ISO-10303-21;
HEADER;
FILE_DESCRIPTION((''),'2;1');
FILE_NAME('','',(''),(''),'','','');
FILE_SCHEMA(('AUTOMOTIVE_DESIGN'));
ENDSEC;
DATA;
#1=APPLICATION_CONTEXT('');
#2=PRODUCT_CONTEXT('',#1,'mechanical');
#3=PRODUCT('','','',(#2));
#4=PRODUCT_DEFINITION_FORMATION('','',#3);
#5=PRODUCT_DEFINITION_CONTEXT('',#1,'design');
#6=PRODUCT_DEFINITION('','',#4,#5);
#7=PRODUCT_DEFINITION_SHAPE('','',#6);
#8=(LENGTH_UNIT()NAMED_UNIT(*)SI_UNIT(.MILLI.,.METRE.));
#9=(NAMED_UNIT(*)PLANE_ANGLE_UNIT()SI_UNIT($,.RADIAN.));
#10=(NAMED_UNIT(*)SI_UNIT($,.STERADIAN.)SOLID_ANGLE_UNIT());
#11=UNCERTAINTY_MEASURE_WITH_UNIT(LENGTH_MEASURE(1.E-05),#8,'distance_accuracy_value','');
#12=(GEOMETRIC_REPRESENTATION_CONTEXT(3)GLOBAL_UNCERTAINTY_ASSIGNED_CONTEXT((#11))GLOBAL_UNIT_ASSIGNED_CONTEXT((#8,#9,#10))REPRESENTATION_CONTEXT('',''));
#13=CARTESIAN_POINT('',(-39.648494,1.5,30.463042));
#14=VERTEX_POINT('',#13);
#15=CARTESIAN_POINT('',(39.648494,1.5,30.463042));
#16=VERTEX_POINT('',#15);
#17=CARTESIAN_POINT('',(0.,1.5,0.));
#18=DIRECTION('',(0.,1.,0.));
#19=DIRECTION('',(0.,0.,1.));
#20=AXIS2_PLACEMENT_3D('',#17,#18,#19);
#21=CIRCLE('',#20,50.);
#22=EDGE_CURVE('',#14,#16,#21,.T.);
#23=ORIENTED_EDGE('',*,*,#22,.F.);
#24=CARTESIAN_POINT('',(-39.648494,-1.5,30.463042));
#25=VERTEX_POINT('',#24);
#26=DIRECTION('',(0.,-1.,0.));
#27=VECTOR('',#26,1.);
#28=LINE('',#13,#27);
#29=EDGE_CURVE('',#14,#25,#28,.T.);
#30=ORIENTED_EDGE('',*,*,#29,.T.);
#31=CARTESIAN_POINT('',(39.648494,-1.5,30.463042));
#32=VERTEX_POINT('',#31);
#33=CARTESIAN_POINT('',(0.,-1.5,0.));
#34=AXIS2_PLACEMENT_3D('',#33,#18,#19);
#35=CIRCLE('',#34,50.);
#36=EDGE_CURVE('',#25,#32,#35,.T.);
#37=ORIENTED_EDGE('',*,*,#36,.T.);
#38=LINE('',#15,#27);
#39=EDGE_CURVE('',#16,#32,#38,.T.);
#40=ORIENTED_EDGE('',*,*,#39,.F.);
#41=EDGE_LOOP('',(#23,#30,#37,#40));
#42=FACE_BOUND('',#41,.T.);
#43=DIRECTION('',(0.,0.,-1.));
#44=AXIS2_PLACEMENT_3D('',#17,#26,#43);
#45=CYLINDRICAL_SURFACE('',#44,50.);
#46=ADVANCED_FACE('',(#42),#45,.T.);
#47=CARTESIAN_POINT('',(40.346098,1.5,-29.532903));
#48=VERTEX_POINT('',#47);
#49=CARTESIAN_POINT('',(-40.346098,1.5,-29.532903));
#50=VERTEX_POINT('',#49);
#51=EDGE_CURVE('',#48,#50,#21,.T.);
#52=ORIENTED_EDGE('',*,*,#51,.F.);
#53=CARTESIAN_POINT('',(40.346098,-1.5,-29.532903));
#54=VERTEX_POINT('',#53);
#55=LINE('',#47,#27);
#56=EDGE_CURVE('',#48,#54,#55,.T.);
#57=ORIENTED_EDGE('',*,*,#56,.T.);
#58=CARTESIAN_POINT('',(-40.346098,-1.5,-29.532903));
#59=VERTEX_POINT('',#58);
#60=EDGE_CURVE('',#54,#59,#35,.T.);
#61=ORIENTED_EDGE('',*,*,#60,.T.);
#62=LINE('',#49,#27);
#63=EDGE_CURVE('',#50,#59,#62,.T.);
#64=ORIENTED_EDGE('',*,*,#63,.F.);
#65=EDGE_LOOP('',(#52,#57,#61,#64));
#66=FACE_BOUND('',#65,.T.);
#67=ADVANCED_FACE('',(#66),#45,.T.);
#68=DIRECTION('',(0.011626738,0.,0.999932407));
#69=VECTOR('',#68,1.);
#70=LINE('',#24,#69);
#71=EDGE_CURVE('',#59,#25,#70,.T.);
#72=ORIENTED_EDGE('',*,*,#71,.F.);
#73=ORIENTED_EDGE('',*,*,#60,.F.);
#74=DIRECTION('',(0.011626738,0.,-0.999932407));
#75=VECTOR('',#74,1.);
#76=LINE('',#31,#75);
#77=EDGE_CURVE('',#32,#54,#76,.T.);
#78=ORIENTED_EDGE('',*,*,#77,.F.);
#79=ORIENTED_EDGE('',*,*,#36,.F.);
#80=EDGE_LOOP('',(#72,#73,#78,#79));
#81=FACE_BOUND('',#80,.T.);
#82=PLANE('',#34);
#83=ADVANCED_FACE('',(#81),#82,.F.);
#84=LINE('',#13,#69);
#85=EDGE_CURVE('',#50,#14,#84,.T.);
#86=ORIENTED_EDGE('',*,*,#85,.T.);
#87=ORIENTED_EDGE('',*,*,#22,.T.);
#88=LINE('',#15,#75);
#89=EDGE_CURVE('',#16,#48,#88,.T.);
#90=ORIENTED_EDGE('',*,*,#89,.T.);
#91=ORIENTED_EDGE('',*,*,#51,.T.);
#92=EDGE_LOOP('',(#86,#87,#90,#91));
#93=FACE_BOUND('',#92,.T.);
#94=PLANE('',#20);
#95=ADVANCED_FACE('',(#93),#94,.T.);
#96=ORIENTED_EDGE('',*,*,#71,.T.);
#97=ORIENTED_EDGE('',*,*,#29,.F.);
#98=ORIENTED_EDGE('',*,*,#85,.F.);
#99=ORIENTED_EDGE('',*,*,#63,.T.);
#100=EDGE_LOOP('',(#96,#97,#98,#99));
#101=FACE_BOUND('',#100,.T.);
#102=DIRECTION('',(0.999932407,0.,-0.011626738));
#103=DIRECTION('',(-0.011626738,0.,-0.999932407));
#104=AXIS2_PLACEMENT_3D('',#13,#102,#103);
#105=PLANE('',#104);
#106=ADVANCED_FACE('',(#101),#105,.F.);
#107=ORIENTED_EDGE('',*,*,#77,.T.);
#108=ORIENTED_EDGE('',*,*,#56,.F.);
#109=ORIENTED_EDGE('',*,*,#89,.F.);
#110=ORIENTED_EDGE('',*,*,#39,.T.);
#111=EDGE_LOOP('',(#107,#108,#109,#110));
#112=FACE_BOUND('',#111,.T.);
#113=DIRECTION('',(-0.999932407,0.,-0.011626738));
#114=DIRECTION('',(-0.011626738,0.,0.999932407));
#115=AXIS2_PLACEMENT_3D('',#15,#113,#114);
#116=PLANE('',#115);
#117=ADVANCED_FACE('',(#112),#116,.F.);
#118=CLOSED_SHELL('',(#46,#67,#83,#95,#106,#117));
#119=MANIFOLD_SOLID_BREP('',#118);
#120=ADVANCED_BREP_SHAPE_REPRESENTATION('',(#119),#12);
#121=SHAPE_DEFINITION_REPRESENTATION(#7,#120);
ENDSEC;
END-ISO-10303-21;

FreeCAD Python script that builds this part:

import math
import FreeCAD as App
import Part
import Sketcher

doc = App.newDocument("Part")
body = doc.addObject("PartDesign::Body", "Body")

# Sketch on XZ plane
sketch1 = body.newObject("Sketcher::SketchObject", "Sketch")
sketch1.AttachmentSupport = (doc.getObject("XZ_Plane"), [""])
sketch1.MapMode = "FlatFace"
sketch1.addGeometry(Part.LineSegment(App.Vector(39.648494, 30.463042, 0), App.Vector(40.346098, -29.532903, 0)), False)
sketch1.addGeometry(Part.ArcOfCircle(Part.Circle(App.Vector(0, 0, 0), App.Vector(0, 0, 1), 50), math.radians(-143.79628), math.radians(-36.20372)), False)
sketch1.addGeometry(Part.LineSegment(App.Vector(-40.346098, -29.532903, 0), App.Vector(-39.648494, 30.463042, 0)), False)
sketch1.addGeometry(Part.ArcOfCircle(Part.Circle(App.Vector(0, 0, 0), App.Vector(0, 0, 1), 50), math.radians(37.536076), math.radians(142.463924)), False)
sketch1.addConstraint(Sketcher.Constraint("Coincident", 0, 2, 1, 2))
sketch1.addConstraint(Sketcher.Constraint("Coincident", 1, 1, 2, 1))
sketch1.addConstraint(Sketcher.Constraint("Coincident", 2, 2, 3, 2))
sketch1.addConstraint(Sketcher.Constraint("Coincident", 3, 1, 0, 1))
sketch1.addConstraint(Sketcher.Constraint("Coincident", 1, 3, -1, 1))
sketch1.addConstraint(Sketcher.Constraint("Coincident", 3, 3, -1, 1))
sketch1.addConstraint(Sketcher.Constraint("Equal", 1, 3))
sketch1.addConstraint(Sketcher.Constraint("Horizontal", 0, 2, 1, 1))
sketch1.addConstraint(Sketcher.Constraint("Horizontal", 2, 2, 3, 1))
sketch1.addConstraint(Sketcher.Constraint("Radius", 1, 50.0))
sketch1.addConstraint(Sketcher.Constraint("Distance", 0, 60.0))
sketch1.addConstraint(Sketcher.Constraint("DistanceX", -1, 1, 0, 2, 40.346098))
pad1 = body.newObject("PartDesign::Pad", "Pad")
pad1.Profile = sketch1
pad1.Length = 3
pad1.Midplane = True

doc.recompute()
